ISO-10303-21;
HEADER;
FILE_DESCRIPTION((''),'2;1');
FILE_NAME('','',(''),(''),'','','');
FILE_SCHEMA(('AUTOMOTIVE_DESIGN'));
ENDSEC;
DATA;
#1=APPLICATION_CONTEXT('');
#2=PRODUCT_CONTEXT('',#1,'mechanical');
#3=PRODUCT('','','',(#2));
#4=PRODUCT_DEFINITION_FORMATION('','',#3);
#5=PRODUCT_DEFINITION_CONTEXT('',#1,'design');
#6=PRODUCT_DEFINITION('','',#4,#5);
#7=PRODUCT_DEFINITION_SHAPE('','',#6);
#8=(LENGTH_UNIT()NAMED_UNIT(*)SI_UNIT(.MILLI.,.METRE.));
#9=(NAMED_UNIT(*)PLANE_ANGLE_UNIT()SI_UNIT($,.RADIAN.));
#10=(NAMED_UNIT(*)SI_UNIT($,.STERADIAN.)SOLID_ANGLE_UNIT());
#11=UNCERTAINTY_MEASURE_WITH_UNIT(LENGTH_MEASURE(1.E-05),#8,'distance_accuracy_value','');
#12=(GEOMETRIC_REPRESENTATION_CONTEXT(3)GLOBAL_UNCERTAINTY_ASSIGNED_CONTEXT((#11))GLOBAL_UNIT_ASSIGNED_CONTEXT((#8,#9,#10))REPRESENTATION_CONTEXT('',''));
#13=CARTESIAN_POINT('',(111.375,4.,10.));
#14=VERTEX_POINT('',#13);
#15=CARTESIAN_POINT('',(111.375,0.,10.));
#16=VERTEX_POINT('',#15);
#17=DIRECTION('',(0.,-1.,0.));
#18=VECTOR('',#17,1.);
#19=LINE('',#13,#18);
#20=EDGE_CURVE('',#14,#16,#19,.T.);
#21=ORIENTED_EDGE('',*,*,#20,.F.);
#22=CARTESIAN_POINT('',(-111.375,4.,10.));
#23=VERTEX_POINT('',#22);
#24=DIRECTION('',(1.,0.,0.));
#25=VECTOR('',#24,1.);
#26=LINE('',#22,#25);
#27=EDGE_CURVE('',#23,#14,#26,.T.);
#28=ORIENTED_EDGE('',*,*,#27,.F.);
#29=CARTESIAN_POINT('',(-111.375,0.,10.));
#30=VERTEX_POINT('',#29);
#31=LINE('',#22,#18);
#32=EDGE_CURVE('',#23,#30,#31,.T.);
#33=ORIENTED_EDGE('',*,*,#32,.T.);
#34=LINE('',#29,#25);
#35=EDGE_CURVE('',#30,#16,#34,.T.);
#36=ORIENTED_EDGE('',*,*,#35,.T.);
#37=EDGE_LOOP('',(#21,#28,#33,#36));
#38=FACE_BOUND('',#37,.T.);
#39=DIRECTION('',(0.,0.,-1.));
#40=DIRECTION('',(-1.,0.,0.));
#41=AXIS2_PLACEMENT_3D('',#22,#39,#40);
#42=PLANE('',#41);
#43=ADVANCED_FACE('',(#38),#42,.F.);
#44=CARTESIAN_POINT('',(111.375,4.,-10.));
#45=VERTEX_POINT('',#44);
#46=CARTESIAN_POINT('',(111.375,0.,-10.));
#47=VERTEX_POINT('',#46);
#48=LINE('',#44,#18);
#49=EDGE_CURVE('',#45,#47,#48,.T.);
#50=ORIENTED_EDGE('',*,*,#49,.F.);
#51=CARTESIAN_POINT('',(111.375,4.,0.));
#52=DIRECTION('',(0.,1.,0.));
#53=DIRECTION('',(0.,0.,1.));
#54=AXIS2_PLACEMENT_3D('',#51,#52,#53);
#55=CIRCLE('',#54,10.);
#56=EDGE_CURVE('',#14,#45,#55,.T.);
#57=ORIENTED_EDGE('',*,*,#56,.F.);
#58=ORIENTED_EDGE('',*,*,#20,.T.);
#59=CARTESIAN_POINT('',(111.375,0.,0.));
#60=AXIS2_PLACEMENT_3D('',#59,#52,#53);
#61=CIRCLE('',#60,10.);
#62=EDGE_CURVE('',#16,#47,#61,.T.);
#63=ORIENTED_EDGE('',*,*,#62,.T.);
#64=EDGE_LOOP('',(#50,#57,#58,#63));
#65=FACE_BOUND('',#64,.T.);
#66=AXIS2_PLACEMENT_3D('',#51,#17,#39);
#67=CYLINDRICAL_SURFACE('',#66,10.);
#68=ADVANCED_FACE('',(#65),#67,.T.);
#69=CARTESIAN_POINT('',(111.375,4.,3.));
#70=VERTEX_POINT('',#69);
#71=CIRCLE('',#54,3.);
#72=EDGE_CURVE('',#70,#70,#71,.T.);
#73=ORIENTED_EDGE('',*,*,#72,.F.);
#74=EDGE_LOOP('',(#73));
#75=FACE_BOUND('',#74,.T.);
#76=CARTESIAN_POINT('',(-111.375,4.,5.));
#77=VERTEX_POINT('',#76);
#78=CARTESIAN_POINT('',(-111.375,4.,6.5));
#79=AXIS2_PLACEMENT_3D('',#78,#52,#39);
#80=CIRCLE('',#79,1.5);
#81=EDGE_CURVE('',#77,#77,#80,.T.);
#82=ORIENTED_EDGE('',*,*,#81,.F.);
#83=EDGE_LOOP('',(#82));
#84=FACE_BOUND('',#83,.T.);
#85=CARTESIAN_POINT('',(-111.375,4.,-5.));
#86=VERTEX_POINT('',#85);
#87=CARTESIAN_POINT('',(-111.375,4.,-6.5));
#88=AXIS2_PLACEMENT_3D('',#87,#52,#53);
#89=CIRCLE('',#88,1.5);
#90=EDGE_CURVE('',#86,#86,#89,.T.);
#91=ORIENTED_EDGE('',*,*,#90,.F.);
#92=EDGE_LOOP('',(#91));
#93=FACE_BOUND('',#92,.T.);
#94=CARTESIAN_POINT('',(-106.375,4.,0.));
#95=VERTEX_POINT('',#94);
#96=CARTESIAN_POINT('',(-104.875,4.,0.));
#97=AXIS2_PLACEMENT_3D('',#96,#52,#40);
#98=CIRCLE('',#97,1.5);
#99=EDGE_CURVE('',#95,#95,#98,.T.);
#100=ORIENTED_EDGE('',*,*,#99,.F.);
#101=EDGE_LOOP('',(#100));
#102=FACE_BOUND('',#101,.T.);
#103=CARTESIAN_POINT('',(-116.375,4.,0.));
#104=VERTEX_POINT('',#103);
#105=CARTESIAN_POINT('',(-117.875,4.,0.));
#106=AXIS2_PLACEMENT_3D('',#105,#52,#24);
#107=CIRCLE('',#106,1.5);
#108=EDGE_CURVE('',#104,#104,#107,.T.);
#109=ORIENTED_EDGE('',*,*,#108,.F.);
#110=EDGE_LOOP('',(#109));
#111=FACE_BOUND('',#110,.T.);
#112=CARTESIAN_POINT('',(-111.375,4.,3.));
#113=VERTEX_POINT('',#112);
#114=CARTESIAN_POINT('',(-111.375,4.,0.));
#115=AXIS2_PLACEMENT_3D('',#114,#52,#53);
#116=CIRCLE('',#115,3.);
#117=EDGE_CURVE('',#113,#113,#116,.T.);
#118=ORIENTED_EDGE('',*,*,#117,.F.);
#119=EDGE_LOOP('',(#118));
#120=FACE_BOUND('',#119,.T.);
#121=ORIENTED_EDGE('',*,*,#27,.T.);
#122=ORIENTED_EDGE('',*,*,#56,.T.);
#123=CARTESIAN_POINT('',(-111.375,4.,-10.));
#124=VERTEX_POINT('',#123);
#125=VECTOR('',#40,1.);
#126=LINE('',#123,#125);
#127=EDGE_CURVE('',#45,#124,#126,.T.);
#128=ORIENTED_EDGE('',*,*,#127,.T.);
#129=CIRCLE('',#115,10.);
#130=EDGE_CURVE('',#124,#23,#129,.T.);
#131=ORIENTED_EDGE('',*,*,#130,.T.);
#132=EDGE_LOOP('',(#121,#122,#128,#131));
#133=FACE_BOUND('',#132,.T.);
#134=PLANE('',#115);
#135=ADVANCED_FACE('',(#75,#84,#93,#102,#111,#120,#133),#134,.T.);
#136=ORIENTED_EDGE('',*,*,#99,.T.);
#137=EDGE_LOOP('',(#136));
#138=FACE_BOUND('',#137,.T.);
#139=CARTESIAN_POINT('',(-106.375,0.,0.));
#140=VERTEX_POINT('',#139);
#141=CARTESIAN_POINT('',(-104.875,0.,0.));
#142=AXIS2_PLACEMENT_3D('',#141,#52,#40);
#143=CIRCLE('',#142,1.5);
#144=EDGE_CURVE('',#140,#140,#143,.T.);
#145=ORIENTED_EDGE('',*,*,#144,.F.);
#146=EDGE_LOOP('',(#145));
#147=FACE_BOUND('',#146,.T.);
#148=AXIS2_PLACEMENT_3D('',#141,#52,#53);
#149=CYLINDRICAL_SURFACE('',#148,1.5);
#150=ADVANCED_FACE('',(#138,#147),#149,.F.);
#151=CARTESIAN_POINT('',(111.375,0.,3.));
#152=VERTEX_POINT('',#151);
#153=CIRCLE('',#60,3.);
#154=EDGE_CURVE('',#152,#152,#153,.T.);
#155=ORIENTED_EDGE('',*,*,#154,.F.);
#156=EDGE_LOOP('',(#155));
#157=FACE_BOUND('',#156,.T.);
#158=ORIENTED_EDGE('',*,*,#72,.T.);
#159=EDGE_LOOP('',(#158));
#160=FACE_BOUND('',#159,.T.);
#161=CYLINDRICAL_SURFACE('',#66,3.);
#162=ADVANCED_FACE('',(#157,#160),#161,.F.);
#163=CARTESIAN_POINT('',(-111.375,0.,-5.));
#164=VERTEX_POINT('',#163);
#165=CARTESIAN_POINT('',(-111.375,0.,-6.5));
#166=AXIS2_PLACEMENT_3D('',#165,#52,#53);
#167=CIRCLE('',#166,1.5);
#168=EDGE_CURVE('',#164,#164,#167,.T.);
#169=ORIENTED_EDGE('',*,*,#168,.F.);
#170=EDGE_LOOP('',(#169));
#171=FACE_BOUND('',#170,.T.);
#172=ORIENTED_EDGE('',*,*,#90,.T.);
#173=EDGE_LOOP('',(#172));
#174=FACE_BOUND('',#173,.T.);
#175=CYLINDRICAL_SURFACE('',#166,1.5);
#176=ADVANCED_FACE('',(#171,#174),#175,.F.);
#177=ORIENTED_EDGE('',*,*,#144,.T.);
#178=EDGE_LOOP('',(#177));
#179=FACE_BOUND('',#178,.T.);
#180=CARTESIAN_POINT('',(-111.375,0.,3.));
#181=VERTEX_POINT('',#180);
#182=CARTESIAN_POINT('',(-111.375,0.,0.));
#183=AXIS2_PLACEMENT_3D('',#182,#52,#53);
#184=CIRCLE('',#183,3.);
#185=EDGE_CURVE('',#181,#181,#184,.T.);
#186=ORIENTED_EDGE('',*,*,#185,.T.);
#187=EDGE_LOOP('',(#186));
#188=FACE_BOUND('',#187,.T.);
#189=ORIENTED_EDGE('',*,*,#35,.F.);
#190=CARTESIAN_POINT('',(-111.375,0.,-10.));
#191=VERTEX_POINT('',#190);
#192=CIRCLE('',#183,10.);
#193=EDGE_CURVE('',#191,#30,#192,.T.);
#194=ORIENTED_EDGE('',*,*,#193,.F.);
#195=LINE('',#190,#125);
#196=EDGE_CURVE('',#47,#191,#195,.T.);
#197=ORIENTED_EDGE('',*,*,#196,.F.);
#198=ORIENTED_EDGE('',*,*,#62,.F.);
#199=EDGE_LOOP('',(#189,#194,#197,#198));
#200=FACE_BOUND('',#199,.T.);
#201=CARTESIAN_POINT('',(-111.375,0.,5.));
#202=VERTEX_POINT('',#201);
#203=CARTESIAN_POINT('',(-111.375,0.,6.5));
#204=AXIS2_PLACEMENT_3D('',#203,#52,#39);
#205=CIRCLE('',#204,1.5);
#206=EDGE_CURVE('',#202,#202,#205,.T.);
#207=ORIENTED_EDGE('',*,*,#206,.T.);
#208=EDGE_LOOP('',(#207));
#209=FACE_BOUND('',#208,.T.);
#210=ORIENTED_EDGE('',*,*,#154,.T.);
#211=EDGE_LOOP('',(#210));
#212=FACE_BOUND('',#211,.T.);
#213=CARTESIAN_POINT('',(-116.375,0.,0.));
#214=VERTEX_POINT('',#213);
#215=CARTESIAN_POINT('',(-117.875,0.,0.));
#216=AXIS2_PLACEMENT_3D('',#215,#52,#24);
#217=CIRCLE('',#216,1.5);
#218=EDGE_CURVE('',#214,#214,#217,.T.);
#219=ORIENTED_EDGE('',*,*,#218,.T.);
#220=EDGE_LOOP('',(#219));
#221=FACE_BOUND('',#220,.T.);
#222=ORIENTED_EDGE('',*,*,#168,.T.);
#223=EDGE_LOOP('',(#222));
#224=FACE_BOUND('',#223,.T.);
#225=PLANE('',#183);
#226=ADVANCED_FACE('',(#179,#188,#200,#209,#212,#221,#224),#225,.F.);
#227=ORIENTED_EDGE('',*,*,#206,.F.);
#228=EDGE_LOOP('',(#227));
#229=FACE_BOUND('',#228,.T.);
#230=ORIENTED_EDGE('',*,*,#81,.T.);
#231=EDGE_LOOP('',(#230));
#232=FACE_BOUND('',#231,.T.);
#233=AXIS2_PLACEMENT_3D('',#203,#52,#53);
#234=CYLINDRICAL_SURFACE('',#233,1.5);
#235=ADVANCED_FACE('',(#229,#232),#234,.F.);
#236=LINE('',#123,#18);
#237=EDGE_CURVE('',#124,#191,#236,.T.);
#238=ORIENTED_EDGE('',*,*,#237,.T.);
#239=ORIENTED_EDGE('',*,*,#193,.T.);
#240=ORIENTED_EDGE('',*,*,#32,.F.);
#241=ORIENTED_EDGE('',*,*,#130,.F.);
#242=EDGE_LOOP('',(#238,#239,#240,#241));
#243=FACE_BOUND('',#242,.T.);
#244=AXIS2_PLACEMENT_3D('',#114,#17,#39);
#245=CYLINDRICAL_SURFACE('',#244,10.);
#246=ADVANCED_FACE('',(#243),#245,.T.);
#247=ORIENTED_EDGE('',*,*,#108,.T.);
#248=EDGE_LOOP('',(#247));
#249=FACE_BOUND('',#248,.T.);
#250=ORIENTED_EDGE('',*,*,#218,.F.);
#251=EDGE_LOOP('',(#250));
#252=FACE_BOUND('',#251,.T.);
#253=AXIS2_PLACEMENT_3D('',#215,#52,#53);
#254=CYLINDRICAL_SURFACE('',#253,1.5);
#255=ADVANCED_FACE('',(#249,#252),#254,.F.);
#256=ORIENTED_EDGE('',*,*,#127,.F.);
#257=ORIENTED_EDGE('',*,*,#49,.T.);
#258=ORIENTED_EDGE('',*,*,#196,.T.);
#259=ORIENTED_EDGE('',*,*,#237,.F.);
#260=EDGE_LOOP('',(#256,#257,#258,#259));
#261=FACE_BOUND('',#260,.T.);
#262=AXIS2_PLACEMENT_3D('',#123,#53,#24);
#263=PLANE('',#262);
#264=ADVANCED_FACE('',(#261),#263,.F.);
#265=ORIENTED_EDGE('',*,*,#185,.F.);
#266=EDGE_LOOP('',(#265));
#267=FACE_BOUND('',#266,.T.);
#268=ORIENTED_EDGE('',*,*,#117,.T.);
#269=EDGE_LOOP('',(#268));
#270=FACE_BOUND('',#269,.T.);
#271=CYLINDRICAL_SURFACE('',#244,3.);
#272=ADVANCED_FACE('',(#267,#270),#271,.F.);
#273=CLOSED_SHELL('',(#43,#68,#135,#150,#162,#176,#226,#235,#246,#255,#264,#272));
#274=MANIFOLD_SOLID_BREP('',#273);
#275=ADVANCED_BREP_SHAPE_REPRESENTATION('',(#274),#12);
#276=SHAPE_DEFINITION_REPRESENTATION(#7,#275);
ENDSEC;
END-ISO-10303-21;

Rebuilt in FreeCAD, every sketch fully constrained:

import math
import FreeCAD as App
import Part
import Sketcher

V = App.Vector
Q = App.Units.Quantity

doc = App.newDocument("Part")
body = doc.addObject("PartDesign::Body", "Body")

# Sketch on XZ plane
sketch1 = body.newObject("Sketcher::SketchObject", "Sketch")
sketch1.AttachmentSupport = (doc.getObject("XZ_Plane"), [""])
sketch1.MapMode = "FlatFace"
sketch1.addGeometry([
    Part.LineSegment(V(111.4, -10, 0), V(-111.4, -10, 0)),  # 0
    Part.ArcOfCircle(Part.Circle(V(-111.4, 0, 0), V(0, 0, 1), 10), math.radians(90), math.radians(270)),  # 1
    Part.LineSegment(V(-111.4, 10, 0), V(111.4, 10, 0)),  # 2
    Part.ArcOfCircle(Part.Circle(V(111.4, 0, 0), V(0, 0, 1), 10), math.radians(-90), math.radians(90)),  # 3
    Part.Circle(V(111.4, 0, 0), V(0, 0, 1), 3),  # 4
    Part.Circle(V(-111.4, 0, 0), V(0, 0, 1), 3),  # 5
], False)
sketch1.addConstraint([
    Sketcher.Constraint("Tangent", 0, 2, 1, 2),
    Sketcher.Constraint("Tangent", 1, 1, 2, 1),
    Sketcher.Constraint("Tangent", 2, 2, 3, 2),
    Sketcher.Constraint("Tangent", 3, 1, 0, 1),
    Sketcher.Constraint("Horizontal", 0),
    Sketcher.Constraint("Horizontal", 2),
    Sketcher.Constraint("Coincident", 4, 3, 3, 3),
    Sketcher.Constraint("Coincident", 5, 3, 1, 3),
    Sketcher.Constraint("Equal", 4, 5),
    Sketcher.Constraint("Symmetric", 1, 3, 3, 3, -1, 1),
    Sketcher.Constraint("Diameter", 4, Q("6 mm")),
    Sketcher.Constraint("Radius", 1, Q("10 mm")),
    Sketcher.Constraint("DistanceX", 0, 2, 0, 1, Q("222.75 mm")),
])
pad1 = body.newObject("PartDesign::Pad", "Pad")
pad1.Profile = sketch1
pad1.Length = 4
pad1.Reversed = True

# Sketch on XZ plane
sketch2 = body.newObject("Sketcher::SketchObject", "Sketch001")
sketch2.AttachmentSupport = (doc.getObject("XZ_Plane"), [""])
sketch2.MapMode = "FlatFace"
sketch2.AttachmentOffset = App.Placement(V(0, 0, -4), App.Rotation())
sketch2.addGeometry(Part.Circle(V(-111.4, -6.5, 0), V(0, 0, 1), 1.5), False)
sketch2.addConstraint([
    Sketcher.Constraint("Diameter", 0, Q("3 mm")),
    Sketcher.Constraint("DistanceY", 0, 3, -1, 1, Q("6.5 mm")),
    Sketcher.Constraint("DistanceX", 0, 3, -1, 1, Q("111.375 mm")),
])
pocket1 = body.newObject("PartDesign::Pocket", "Pocket")
pocket1.Profile = sketch2
pocket1.Length = 4
pocket1.Reversed = True
doc.recompute()

datumline = body.newObject("PartDesign::Line", "DatumLine")
datumline.Placement = App.Placement(V(-111.375, 0, 0), App.Rotation(V(0, 0, 1), V(0, 1, 0)))
polarpattern = body.newObject("PartDesign::PolarPattern", "PolarPattern")
polarpattern.Originals = [pocket1]
polarpattern.Axis = (datumline, [""])
polarpattern.Angle = 360
polarpattern.Occurrences = 4
body.Tip = polarpattern

doc.recompute()
